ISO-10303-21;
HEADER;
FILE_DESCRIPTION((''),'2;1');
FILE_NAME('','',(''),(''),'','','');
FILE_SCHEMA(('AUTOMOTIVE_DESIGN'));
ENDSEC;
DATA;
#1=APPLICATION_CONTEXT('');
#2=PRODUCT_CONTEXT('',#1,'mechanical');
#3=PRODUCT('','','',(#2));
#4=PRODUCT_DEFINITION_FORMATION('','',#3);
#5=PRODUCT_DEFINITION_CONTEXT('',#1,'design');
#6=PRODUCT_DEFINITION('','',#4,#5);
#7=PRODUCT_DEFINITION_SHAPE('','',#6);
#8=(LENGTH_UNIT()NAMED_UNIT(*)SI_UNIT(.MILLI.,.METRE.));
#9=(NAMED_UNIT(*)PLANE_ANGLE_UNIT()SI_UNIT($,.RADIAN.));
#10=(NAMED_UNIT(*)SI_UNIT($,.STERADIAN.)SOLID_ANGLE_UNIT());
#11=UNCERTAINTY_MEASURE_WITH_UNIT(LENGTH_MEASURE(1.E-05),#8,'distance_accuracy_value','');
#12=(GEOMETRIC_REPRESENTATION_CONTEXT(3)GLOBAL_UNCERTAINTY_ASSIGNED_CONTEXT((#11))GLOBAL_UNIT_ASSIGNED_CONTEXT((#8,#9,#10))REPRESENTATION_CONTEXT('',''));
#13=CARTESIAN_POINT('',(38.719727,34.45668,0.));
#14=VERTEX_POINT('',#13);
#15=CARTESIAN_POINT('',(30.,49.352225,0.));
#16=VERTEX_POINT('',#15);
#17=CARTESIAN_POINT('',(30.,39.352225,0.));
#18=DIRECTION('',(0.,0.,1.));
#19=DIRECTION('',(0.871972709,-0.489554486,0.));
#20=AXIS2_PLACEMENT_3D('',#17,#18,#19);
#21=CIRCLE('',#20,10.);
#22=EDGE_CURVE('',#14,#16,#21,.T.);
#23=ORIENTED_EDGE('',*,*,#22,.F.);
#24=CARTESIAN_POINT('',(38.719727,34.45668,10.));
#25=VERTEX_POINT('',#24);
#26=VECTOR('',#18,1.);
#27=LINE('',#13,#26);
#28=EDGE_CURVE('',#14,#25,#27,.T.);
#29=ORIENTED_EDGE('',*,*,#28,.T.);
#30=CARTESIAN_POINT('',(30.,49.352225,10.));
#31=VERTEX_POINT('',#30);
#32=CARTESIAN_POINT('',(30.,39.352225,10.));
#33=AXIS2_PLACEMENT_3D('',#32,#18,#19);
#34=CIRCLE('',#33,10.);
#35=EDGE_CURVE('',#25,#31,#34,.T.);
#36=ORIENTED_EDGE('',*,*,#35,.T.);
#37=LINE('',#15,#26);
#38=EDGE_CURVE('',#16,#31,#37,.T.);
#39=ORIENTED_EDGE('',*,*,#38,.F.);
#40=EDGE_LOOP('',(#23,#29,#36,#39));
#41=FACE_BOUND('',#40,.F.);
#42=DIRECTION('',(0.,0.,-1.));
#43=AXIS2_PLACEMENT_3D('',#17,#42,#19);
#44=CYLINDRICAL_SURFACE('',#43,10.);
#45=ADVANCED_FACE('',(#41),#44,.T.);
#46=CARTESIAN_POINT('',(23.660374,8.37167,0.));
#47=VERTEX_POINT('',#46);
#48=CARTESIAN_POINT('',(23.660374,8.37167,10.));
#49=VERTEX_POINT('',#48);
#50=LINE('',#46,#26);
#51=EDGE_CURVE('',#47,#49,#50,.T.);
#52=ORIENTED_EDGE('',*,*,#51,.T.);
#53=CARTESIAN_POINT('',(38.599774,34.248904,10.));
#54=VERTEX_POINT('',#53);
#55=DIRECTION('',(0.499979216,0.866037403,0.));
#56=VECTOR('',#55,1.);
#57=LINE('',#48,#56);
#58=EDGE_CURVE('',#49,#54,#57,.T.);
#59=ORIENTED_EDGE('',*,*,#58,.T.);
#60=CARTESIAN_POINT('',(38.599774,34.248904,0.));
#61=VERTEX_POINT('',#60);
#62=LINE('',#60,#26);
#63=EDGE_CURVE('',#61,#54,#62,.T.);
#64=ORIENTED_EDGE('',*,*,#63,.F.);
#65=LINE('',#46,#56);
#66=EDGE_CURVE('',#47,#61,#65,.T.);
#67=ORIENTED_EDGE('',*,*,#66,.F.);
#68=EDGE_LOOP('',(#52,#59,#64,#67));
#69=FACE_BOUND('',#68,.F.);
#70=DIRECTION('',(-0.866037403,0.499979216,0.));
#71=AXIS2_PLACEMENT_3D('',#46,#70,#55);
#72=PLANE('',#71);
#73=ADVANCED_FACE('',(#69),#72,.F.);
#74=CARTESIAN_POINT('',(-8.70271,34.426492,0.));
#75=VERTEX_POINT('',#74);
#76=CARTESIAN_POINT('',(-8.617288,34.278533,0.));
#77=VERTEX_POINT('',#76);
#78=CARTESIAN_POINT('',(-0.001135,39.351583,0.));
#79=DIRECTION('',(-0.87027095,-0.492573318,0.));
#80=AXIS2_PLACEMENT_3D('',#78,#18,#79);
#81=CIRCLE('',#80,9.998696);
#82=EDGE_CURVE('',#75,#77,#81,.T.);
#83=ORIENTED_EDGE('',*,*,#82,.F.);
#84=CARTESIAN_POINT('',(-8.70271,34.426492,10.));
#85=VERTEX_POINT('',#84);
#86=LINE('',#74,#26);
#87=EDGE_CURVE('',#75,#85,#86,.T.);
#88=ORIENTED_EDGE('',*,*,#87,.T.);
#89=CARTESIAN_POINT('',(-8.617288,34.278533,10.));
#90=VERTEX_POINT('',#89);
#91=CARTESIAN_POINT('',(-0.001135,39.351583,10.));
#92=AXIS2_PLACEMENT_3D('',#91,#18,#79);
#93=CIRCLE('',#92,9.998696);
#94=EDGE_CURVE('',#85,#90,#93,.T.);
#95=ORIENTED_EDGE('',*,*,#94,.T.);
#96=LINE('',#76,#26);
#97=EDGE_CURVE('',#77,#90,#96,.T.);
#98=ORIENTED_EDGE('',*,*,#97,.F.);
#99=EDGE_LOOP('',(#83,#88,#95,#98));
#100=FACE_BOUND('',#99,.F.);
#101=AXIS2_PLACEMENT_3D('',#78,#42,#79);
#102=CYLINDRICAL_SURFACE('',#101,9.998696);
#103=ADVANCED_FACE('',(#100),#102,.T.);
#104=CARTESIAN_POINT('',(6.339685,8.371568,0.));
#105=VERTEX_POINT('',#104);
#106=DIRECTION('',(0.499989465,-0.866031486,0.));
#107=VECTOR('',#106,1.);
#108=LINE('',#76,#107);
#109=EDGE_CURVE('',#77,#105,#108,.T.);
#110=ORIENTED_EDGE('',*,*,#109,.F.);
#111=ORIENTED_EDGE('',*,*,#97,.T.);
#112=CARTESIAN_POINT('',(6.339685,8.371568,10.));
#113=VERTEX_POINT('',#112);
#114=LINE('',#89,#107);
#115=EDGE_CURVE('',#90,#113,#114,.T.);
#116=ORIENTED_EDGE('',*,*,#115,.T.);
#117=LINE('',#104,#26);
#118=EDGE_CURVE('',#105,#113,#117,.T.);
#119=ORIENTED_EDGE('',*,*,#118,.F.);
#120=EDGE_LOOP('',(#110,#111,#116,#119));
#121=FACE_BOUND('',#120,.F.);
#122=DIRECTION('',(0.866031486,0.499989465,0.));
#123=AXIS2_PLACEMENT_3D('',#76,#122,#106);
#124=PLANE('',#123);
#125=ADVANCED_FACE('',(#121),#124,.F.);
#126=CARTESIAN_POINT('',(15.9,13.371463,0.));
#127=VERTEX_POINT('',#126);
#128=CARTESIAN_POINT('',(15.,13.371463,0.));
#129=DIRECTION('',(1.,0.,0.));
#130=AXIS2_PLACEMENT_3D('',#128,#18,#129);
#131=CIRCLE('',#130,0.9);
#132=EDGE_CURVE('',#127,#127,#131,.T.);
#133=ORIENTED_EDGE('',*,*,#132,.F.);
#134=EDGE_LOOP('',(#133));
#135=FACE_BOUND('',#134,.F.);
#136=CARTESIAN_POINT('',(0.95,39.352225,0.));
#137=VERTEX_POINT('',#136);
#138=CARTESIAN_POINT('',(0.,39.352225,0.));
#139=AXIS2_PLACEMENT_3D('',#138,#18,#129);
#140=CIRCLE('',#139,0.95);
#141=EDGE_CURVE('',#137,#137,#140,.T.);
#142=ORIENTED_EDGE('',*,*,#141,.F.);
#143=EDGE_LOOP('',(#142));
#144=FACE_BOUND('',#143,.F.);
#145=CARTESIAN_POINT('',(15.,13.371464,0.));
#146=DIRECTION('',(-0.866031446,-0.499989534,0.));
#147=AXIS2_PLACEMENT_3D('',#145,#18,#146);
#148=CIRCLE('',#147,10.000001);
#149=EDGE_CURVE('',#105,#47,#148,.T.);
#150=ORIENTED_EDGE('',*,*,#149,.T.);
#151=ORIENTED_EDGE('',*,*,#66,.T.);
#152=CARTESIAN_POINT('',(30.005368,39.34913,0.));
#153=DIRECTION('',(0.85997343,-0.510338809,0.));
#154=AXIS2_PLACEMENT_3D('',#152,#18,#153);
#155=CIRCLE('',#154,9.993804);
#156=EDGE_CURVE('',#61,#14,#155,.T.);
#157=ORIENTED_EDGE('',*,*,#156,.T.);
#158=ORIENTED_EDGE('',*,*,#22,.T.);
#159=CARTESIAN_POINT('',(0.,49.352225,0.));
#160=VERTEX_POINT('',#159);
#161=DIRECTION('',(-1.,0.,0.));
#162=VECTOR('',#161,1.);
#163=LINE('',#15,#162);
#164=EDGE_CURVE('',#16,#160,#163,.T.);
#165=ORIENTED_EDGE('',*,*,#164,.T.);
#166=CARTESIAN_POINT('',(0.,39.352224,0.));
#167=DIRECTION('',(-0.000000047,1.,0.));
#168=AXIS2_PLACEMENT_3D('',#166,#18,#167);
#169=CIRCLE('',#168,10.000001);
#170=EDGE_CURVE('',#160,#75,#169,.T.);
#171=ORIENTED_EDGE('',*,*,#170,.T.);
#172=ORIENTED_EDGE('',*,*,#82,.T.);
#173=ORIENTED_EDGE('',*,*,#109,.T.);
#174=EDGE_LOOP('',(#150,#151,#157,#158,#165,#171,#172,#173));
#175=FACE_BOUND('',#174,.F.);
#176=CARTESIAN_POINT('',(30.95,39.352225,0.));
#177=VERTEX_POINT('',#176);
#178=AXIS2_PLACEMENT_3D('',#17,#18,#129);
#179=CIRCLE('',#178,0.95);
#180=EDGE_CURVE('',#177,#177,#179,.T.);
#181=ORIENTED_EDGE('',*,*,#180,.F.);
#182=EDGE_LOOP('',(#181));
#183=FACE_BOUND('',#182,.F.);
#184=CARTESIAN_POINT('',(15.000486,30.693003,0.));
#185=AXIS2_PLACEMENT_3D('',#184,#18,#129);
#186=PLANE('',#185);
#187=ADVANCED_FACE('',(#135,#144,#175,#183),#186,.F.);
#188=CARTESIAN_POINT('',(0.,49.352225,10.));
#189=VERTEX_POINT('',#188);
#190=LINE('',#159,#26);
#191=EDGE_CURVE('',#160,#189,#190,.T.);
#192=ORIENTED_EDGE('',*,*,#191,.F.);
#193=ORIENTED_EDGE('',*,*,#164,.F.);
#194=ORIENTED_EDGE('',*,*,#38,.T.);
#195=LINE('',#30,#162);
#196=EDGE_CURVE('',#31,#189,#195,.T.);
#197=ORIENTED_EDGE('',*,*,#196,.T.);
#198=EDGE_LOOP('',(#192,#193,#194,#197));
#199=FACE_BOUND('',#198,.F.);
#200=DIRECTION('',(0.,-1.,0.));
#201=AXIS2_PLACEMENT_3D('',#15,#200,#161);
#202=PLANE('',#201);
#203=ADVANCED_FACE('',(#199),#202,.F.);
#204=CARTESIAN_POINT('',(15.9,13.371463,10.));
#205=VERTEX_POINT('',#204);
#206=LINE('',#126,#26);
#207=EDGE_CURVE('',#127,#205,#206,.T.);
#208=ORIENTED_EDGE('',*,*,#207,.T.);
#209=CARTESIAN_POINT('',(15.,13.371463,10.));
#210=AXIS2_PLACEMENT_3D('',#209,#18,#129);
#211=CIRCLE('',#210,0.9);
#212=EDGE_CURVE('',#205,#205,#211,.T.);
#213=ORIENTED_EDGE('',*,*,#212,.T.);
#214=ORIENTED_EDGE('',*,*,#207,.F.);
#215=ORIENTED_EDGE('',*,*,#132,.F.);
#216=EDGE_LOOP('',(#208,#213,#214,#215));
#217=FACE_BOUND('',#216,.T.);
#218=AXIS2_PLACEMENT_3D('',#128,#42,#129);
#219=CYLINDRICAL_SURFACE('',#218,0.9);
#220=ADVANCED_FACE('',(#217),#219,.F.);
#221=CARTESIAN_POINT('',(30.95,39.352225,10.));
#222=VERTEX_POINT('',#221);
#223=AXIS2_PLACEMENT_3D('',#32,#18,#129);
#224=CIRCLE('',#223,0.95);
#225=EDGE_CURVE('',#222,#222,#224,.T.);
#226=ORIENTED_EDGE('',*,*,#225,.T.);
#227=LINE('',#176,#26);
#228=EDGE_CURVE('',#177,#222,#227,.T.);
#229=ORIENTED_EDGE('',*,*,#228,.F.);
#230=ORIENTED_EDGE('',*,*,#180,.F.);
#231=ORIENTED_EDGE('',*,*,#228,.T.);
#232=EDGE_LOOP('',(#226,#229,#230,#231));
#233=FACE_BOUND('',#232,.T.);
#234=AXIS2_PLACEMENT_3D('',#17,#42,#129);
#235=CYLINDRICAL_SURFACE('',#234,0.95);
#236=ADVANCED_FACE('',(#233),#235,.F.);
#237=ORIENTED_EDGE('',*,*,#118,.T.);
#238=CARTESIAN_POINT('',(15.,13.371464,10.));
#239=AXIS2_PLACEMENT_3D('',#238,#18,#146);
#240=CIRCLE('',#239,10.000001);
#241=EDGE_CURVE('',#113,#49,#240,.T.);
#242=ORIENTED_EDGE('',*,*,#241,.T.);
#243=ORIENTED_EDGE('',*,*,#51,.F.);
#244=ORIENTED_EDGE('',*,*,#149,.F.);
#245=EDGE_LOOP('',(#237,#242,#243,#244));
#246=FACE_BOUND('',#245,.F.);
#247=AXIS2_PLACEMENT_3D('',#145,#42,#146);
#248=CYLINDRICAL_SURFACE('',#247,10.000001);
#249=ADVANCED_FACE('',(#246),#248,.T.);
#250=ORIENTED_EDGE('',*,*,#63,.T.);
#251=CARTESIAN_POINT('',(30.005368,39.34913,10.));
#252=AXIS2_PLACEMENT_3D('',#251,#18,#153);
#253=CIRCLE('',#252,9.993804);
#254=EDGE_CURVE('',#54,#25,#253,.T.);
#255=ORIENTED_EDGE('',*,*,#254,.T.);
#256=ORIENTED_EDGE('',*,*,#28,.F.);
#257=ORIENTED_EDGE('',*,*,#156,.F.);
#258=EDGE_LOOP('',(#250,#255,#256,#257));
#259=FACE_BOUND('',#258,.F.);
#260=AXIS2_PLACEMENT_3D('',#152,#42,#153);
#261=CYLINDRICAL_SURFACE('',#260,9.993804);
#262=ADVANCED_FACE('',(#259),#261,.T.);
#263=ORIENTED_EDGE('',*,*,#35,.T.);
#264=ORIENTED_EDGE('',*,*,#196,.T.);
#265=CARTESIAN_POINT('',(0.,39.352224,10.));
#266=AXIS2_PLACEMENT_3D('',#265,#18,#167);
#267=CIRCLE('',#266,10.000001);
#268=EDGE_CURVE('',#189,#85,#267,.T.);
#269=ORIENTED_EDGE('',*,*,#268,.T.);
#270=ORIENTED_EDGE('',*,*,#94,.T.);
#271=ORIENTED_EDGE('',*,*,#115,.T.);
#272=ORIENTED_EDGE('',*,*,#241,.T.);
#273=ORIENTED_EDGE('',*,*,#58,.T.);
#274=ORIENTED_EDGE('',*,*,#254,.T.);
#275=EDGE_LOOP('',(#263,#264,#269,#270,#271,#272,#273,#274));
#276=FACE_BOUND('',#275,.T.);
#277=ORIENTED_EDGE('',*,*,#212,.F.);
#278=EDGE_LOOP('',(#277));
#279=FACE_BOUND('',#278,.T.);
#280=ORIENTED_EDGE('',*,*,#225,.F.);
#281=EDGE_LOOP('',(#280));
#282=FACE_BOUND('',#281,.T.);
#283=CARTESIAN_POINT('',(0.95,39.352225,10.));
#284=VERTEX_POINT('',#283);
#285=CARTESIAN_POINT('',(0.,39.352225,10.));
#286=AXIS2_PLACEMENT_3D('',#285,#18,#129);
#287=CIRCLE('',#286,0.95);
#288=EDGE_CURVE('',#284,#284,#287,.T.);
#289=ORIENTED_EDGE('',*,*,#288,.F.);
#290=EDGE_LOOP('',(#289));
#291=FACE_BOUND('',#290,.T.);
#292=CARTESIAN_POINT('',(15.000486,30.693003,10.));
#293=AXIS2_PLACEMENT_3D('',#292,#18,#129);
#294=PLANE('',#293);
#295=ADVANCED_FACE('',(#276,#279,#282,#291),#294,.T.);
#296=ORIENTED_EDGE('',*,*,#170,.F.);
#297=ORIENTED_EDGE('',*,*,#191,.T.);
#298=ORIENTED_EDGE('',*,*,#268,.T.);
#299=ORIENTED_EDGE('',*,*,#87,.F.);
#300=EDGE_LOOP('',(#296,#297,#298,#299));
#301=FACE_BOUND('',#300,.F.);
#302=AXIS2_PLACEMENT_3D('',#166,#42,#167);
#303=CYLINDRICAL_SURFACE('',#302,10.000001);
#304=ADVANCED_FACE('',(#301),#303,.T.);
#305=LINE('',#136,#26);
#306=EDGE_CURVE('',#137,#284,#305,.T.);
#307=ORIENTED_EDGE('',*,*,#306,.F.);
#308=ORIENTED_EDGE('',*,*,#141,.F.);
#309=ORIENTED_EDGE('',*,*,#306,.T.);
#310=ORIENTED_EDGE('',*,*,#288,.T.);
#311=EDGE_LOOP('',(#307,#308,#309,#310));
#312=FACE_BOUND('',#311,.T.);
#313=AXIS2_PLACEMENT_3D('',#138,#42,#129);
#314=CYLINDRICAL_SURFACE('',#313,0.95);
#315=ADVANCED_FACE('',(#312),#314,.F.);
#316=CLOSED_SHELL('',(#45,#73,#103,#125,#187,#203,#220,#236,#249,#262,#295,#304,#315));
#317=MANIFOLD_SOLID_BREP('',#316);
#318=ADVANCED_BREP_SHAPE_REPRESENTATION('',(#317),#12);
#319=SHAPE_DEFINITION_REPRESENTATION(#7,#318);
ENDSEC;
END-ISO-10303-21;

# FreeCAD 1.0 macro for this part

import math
import FreeCAD as App
import Part
import Sketcher
Q = App.Units.Quantity

doc = App.newDocument("Part")
body = doc.addObject("PartDesign::Body", "Body")

# Sketch on XY plane
sketch1 = body.newObject("Sketcher::SketchObject", "Sketch")
sketch1.AttachmentSupport = (doc.getObject("XY_Plane"), [""])
sketch1.MapMode = "FlatFace"
sketch1.addGeometry([
    Part.LineSegment(App.Vector(30, 49.35, 0), App.Vector(0, 49.35, 0)),  # 0
    Part.ArcOfCircle(Part.Circle(App.Vector(0, 39.35, 0), App.Vector(0, 0, 1), 10), math.radians(90), math.radians(210)),  # 1
    Part.ArcOfCircle(Part.Circle(App.Vector(0, 39.35, 0), App.Vector(0, 0, 1), 10), math.radians(-150.49), math.radians(-149.51)),  # 2
    Part.LineSegment(App.Vector(-8.62, 34.28, 0), App.Vector(6.34, 8.37, 0)),  # 3
    Part.ArcOfCircle(Part.Circle(App.Vector(15, 13.37, 0), App.Vector(0, 0, 1), 10), math.radians(-150), math.radians(-30)),  # 4
    Part.LineSegment(App.Vector(23.66, 8.37, 0), App.Vector(38.6, 34.25, 0)),  # 5
    Part.ArcOfCircle(Part.Circle(App.Vector(30.01, 39.35, 0), App.Vector(0, 0, 1), 9.99), math.radians(-30.69), math.radians(-29.31)),  # 6
    Part.ArcOfCircle(Part.Circle(App.Vector(30, 39.35, 0), App.Vector(0, 0, 1), 10), math.radians(-29), math.radians(90)),  # 7
    Part.Circle(App.Vector(15, 13.37, 0), App.Vector(0, 0, 1), 0.9),  # 8
    Part.Circle(App.Vector(0, 39.35, 0), App.Vector(0, 0, 1), 0.95),  # 9
    Part.Circle(App.Vector(30, 39.35, 0), App.Vector(0, 0, 1), 0.95),  # 10
], False)
sketch1.addConstraint([
    Sketcher.Constraint("Tangent", 0, 2, 1, 1),
    Sketcher.Constraint("Tangent", 1, 2, 2, 1),
    Sketcher.Constraint("Coincident", 2, 2, 3, 1),
    Sketcher.Constraint("Tangent", 3, 2, 4, 1),
    Sketcher.Constraint("Tangent", 4, 2, 5, 1),
    Sketcher.Constraint("Coincident", 5, 2, 6, 1),
    Sketcher.Constraint("Coincident", 6, 2, 7, 1),
    Sketcher.Constraint("Tangent", 7, 2, 0, 1),
    Sketcher.Constraint("Horizontal", 0),
    Sketcher.Constraint("Coincident", 8, 3, 4, 3),
    Sketcher.Constraint("Coincident", 9, 3, 1, 3),
    Sketcher.Constraint("Coincident", 10, 3, 7, 3),
    Sketcher.Constraint("Equal", 1, 4),
    Sketcher.Constraint("Equal", 4, 7),
    Sketcher.Constraint("Equal", 9, 10),
    Sketcher.Constraint("PointOnObject", 1, 3, -2),
    Sketcher.Constraint("Radius", 1, Q("10.000001 mm")),
    Sketcher.Constraint("Diameter", 8, Q("1.8 mm")),
    Sketcher.Constraint("Diameter", 9, Q("1.9 mm")),
    Sketcher.Constraint("DistanceX", 0, 2, 0, 1, Q("30 mm")),
    Sketcher.Constraint("DistanceX", -1, 1, 4, 3, Q("15 mm")),
    Sketcher.Constraint("Radius", 2, Q("9.998696 mm")),
    Sketcher.Constraint("Radius", 6, Q("9.993804 mm")),
    Sketcher.Constraint("DistanceX", 4, 2, 5, 2, Q("14.9394 mm")),
    Sketcher.Constraint("DistanceY", -1, 1, 6, 3, Q("39.34913 mm")),
    Sketcher.Constraint("DistanceX", 1, 2, -1, 1, Q("8.70271 mm")),
    Sketcher.Constraint("DistanceY", -1, 1, 4, 2, Q("8.37167 mm")),
    Sketcher.Constraint("DistanceY", -1, 1, 6, 2, Q("34.45668 mm")),
    Sketcher.Constraint("DistanceY", 4, 3, 1, 3, Q("25.980761 mm")),
    Sketcher.Constraint("DistanceX", 1, 2, 2, 2, Q("0.085422 mm")),
])
pad1 = body.newObject("PartDesign::Pad", "Pad")
pad1.Profile = sketch1
pad1.Length = 10

doc.recompute()
